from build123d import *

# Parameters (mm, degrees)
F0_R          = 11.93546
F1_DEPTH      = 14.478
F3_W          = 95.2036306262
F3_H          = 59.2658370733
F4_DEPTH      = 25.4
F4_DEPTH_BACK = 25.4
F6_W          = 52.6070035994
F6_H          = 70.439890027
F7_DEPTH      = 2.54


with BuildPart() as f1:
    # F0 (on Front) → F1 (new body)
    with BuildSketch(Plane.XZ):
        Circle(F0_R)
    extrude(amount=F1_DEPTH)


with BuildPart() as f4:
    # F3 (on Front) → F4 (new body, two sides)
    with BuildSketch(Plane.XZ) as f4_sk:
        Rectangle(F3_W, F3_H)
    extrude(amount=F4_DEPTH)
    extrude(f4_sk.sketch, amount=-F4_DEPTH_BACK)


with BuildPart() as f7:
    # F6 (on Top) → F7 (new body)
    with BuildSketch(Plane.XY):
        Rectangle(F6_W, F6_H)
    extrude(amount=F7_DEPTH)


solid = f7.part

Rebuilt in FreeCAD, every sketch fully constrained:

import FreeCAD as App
import Part
import Sketcher
Q = App.Units.Quantity

doc = App.newDocument("Part")
body = doc.addObject("PartDesign::Body", "Body")

sketch1 = body.newObject("Sketcher::SketchObject", "Sketch")
sketch1.AttachmentSupport = (doc.getObject("XZ_Plane"), [""])
sketch1.MapMode = "FlatFace"
sketch1.addGeometry(Part.Circle(App.Vector(0, 0, 0), App.Vector(0, 0, 1), 12), False)
sketch1.addConstraint(Sketcher.Constraint("Coincident", 0, 3, -1, 1))
sketch1.addConstraint(Sketcher.Constraint("Diameter", 0, Q("0.9398 in")))
pad1 = body.newObject("PartDesign::Pad", "Pad")
pad1.Profile = sketch1
pad1.Length = Q("0.57 in")
body2 = doc.addObject("PartDesign::Body", "Body001")

sketch2 = body2.newObject("Sketcher::SketchObject", "Sketch001")
sketch2.AttachmentSupport = (doc.getObject("XZ_Plane001"), [""])
sketch2.MapMode = "FlatFace"
sketch2.addGeometry(Part.LineSegment(App.Vector(-48, 30, 0), App.Vector(-48, -30, 0)), False)
sketch2.addGeometry(Part.LineSegment(App.Vector(-48, -30, 0), App.Vector(48, -30, 0)), False)
sketch2.addGeometry(Part.LineSegment(App.Vector(48, -30, 0), App.Vector(48, 30, 0)), False)
sketch2.addGeometry(Part.LineSegment(App.Vector(48, 30, 0), App.Vector(-48, 30, 0)), False)
sketch2.addConstraint(Sketcher.Constraint("Coincident", 0, 2, 1, 1))
sketch2.addConstraint(Sketcher.Constraint("Coincident", 1, 2, 2, 1))
sketch2.addConstraint(Sketcher.Constraint("Coincident", 2, 2, 3, 1))
sketch2.addConstraint(Sketcher.Constraint("Coincident", 3, 2, 0, 1))
sketch2.addConstraint(Sketcher.Constraint("Vertical", 0))
sketch2.addConstraint(Sketcher.Constraint("Horizontal", 1))
sketch2.addConstraint(Sketcher.Constraint("Vertical", 2))
sketch2.addConstraint(Sketcher.Constraint("Horizontal", 3))
sketch2.addConstraint(Sketcher.Constraint("Symmetric", 0, 2, 2, 2, -1, 1))
sketch2.addConstraint(Sketcher.Constraint("DistanceX", 1, 1, 1, 2, 95.203631))
sketch2.addConstraint(Sketcher.Constraint("DistanceY", 0, 2, 0, 1, 59.265837))
pad2 = body2.newObject("PartDesign::Pad", "Pad001")
pad2.Profile = sketch2
pad2.Type = "TwoLengths"
pad2.Length = Q("1 in")
pad2.Length2 = Q("1 in")
body3 = doc.addObject("PartDesign::Body", "Body002")

sketch3 = body3.newObject("Sketcher::SketchObject", "Sketch002")
sketch3.AttachmentSupport = (doc.getObject("XY_Plane002"), [""])
sketch3.MapMode = "FlatFace"
sketch3.addGeometry(Part.LineSegment(App.Vector(-26, 35, 0), App.Vector(-26, -35, 0)), False)
sketch3.addGeometry(Part.LineSegment(App.Vector(-26, -35, 0), App.Vector(26, -35, 0)), False)
sketch3.addGeometry(Part.LineSegment(App.Vector(26, -35, 0), App.Vector(26, 35, 0)), False)
sketch3.addGeometry(Part.LineSegment(App.Vector(26, 35, 0), App.Vector(-26, 35, 0)), False)
sketch3.addConstraint(Sketcher.Constraint("Coincident", 0, 2, 1, 1))
sketch3.addConstraint(Sketcher.Constraint("Coincident", 1, 2, 2, 1))
sketch3.addConstraint(Sketcher.Constraint("Coincident", 2, 2, 3, 1))
sketch3.addConstraint(Sketcher.Constraint("Coincident", 3, 2, 0, 1))
sketch3.addConstraint(Sketcher.Constraint("Vertical", 0))
sketch3.addConstraint(Sketcher.Constraint("Horizontal", 1))
sketch3.addConstraint(Sketcher.Constraint("Vertical", 2))
sketch3.addConstraint(Sketcher.Constraint("Horizontal", 3))
sketch3.addConstraint(Sketcher.Constraint("Symmetric", 0, 2, 2, 2, -1, 1))
sketch3.addConstraint(Sketcher.Constraint("DistanceY", 0, 2, 0, 1, 70.43989))
sketch3.addConstraint(Sketcher.Constraint("DistanceX", 0, 2, -1, 1, 26.303502))
pad3 = body3.newObject("PartDesign::Pad", "Pad002")
pad3.Profile = sketch3
pad3.Length = Q("0.1 in")
body.Visibility = False
body2.Visibility = False

doc.recompute()
